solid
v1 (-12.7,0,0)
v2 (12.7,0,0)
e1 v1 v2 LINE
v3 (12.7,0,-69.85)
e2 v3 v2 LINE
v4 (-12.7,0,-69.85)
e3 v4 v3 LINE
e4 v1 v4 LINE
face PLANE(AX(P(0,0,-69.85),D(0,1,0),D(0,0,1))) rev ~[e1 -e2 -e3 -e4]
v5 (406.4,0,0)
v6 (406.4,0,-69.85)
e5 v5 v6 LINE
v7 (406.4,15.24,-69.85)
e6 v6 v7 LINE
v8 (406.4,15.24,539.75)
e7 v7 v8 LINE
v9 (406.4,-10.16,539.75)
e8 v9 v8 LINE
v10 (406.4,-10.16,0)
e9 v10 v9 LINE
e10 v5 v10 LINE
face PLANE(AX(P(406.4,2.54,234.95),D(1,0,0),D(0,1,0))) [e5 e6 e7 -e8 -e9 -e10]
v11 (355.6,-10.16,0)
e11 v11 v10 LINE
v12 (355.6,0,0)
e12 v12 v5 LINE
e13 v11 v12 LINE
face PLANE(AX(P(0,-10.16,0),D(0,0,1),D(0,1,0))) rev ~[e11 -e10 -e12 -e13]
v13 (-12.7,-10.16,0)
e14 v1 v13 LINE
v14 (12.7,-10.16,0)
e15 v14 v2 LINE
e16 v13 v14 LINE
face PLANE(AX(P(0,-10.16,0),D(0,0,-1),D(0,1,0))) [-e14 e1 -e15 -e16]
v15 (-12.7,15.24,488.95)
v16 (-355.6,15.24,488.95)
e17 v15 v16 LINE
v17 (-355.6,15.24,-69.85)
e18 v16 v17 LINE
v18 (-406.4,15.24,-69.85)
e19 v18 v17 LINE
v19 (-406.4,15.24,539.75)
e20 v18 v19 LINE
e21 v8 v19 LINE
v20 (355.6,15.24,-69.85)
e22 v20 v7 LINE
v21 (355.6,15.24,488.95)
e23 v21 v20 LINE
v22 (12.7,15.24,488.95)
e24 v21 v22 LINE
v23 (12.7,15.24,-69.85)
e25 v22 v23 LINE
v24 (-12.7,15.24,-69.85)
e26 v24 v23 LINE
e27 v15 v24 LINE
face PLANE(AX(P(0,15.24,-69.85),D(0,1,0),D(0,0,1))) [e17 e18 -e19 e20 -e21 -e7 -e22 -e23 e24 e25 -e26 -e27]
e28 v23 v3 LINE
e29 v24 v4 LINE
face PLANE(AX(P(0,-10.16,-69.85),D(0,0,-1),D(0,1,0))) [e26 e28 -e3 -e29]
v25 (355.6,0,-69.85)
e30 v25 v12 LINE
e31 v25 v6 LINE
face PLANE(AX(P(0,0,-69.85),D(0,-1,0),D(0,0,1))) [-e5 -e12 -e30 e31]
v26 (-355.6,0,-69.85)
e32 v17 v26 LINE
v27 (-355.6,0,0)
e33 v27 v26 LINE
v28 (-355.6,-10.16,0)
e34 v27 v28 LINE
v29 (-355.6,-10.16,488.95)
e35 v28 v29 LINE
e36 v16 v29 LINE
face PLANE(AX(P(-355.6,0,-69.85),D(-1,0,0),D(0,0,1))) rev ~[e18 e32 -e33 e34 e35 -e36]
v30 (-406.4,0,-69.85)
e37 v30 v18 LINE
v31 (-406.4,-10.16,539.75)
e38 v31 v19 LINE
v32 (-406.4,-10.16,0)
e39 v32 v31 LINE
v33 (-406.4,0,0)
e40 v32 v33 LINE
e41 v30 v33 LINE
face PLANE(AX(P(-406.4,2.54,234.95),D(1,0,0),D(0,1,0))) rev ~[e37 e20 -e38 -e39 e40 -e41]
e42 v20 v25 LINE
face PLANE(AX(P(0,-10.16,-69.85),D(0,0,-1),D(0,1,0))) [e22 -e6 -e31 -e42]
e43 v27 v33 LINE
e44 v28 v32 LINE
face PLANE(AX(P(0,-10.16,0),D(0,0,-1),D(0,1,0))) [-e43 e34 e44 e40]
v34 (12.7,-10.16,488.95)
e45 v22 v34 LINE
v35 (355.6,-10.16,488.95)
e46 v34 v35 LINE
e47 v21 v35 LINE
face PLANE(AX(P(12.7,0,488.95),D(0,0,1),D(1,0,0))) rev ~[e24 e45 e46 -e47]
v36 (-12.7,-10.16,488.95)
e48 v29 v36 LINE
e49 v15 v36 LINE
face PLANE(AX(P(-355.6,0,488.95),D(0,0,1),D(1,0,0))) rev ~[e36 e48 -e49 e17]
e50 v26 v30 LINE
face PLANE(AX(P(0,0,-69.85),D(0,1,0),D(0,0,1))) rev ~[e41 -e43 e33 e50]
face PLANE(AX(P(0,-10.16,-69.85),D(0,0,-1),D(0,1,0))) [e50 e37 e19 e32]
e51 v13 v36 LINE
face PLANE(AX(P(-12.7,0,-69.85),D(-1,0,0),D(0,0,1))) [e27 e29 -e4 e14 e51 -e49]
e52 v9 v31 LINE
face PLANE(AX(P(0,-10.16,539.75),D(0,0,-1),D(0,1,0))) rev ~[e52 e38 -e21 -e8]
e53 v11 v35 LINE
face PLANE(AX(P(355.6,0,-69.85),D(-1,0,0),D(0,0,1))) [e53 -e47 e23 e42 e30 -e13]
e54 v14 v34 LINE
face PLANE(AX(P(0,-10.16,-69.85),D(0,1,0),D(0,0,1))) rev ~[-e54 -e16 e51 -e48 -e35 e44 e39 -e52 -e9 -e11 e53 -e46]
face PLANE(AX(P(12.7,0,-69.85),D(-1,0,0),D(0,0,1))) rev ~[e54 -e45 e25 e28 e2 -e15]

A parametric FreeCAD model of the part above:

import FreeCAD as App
import Part
import Sketcher
Q = App.Units.Quantity


def add_polygon(sketch, points):
    """Adds a closed chain of lines whose ends are joined by coincident constraints."""
    first, n = sketch.GeometryCount, len(points)
    for a, b in zip(points, points[1:] + points[:1]):
        sketch.addGeometry(Part.LineSegment(App.Vector(*a, 0), App.Vector(*b, 0)), False)
    for i in range(n):
        sketch.addConstraint(Sketcher.Constraint("Coincident", first + i, 2, first + (i + 1) % n, 1))

doc = App.newDocument("Part")
body = doc.addObject("PartDesign::Body", "Body")

sketch1 = body.newObject("Sketcher::SketchObject", "Sketch")
sketch1.AttachmentSupport = (doc.getObject("YZ_Plane"), [""])
sketch1.MapMode = "FlatFace"
add_polygon(sketch1, [(-10, 540), (-10, -70), (15, -70), (15, 540)])
sketch1.addConstraint(Sketcher.Constraint("Vertical", 0))
sketch1.addConstraint(Sketcher.Constraint("Horizontal", 1))
sketch1.addConstraint(Sketcher.Constraint("Vertical", 2))
sketch1.addConstraint(Sketcher.Constraint("Horizontal", 3))
sketch1.addConstraint(Sketcher.Constraint("DistanceX", 1, 1, 1, 2, Q("1 in")))
sketch1.addConstraint(Sketcher.Constraint("DistanceY", 0, 2, 0, 1, Q("24 in")))
sketch1.addConstraint(Sketcher.Constraint("DistanceX", 0, 2, -1, 1, Q("0.4 in")))
sketch1.addConstraint(Sketcher.Constraint("DistanceY", 0, 2, -1, 1, Q("2.75 in")))
pad1 = body.newObject("PartDesign::Pad", "Pad")
pad1.Profile = sketch1
pad1.Length = Q("32 in")
pad1.Midplane = True

sketch2 = body.newObject("Sketcher::SketchObject", "Sketch001")
sketch2.AttachmentSupport = (doc.getObject("XZ_Plane"), [""])
sketch2.MapMode = "FlatFace"
add_polygon(sketch2, [(-356, 489), (-356, -70), (-13, -70), (-13, 489)])
add_polygon(sketch2, [(13, 489), (13, -70), (356, -70), (356, 489)])
sketch2.addConstraint(Sketcher.Constraint("Vertical", 0))
sketch2.addConstraint(Sketcher.Constraint("Horizontal", 1))
sketch2.addConstraint(Sketcher.Constraint("Vertical", 2))
sketch2.addConstraint(Sketcher.Constraint("Horizontal", 3))
sketch2.addConstraint(Sketcher.Constraint("Vertical", 4))
sketch2.addConstraint(Sketcher.Constraint("Horizontal", 5))
sketch2.addConstraint(Sketcher.Constraint("Vertical", 6))
sketch2.addConstraint(Sketcher.Constraint("Horizontal", 7))
sketch2.addConstraint(Sketcher.Constraint("Symmetric", 1, 2, 4, 2, -2))
sketch2.addConstraint(Sketcher.Constraint("Symmetric", 3, 2, 6, 2, -2))
sketch2.addConstraint(Sketcher.Constraint("DistanceY", 0, 2, 0, 1, Q("22 in")))
sketch2.addConstraint(Sketcher.Constraint("DistanceX", 1, 1, 1, 2, Q("13.5 in")))
sketch2.addConstraint(Sketcher.Constraint("DistanceX", 0, 2, -1, 1, Q("14 in")))
sketch2.addConstraint(Sketcher.Constraint("DistanceY", 0, 2, -1, 1, Q("2.75 in")))
pocket1 = body.newObject("PartDesign::Pocket", "Pocket")
pocket1.Profile = sketch2
pocket1.Type = "ThroughAll"
pocket1.Midplane = True

sketch3 = body.newObject("Sketcher::SketchObject", "Sketch002")
sketch3.AttachmentSupport = (doc.getObject("YZ_Plane"), [""])
sketch3.MapMode = "FlatFace"
add_polygon(sketch3, [(-10, 0), (-10, -70), (0, -70), (0, 0)])
sketch3.addConstraint(Sketcher.Constraint("Vertical", 0))
sketch3.addConstraint(Sketcher.Constraint("Horizontal", 1))
sketch3.addConstraint(Sketcher.Constraint("Vertical", 2))
sketch3.addConstraint(Sketcher.Constraint("Horizontal", 3))
sketch3.addConstraint(Sketcher.Constraint("Coincident", 2, 2, -1, 1))
sketch3.addConstraint(Sketcher.Constraint("DistanceX", 1, 1, 1, 2, Q("0.4 in")))
sketch3.addConstraint(Sketcher.Constraint("DistanceY", 0, 2, 0, 1, Q("2.75 in")))
pocket2 = body.newObject("PartDesign::Pocket", "Pocket001")
pocket2.Profile = sketch3
pocket2.Type = "ThroughAll"
pocket2.Midplane = True

doc.recompute()
